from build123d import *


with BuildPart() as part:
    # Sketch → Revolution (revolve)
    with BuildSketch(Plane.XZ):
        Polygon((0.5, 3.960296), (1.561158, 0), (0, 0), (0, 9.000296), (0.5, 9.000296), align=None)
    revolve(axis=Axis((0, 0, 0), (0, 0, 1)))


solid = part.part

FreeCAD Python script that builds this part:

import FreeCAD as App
import Part
import Sketcher

V = App.Vector
Q = App.Units.Quantity

doc = App.newDocument("Part")
params = doc.addObject("Spreadsheet::Sheet", "Params")
for row, (alias, value) in enumerate([
    ("sketch1_width", "0.5 mm"),
    ("sketch1_length", "4.1 mm"),
    ("sketch1_height", "5.04 mm"),
    ("revolution_angle", "360 deg"),
], start=1):
    params.set(f"A{row}", alias)
    params.set(f"B{row}", "=" + value)
    params.setAlias(f"B{row}", alias)

body = doc.addObject("PartDesign::Body", "Body")

# Sketch on XZ plane
sketch1 = body.newObject("Sketcher::SketchObject", "Sketch")
sketch1.AttachmentSupport = (doc.getObject("XZ_Plane"), [""])
sketch1.MapMode = "FlatFace"
sketch1.addGeometry(Part.LineSegment(V(1.6, 0, 0), V(0.5, 4, 0)), False)
sketch1.addGeometry(Part.LineSegment(V(0.5, 4, 0), V(0.5, 9, 0)), False)
sketch1.addGeometry(Part.LineSegment(V(0.5, 9, 0), V(0, 9, 0)), False)
sketch1.addGeometry(Part.LineSegment(V(0, 9, 0), V(0, 0, 0)), False)
sketch1.addGeometry(Part.LineSegment(V(0, 0, 0), V(1.6, 0, 0)), False)
sketch1.addConstraint(Sketcher.Constraint("Coincident", 0, 2, 1, 1))
sketch1.addConstraint(Sketcher.Constraint("Coincident", 1, 2, 2, 1))
sketch1.addConstraint(Sketcher.Constraint("Coincident", 2, 2, 3, 1))
sketch1.addConstraint(Sketcher.Constraint("Coincident", 3, 2, 4, 1))
sketch1.addConstraint(Sketcher.Constraint("Coincident", 4, 2, 0, 1))
sketch1.addConstraint(Sketcher.Constraint("Vertical", 1))
sketch1.addConstraint(Sketcher.Constraint("Horizontal", 2))
sketch1.addConstraint(Sketcher.Constraint("Vertical", 3))
sketch1.addConstraint(Sketcher.Constraint("Horizontal", 4))
sketch1.addConstraint(Sketcher.Constraint("Coincident", 3, 2, -1, 1))
sketch1.addConstraint(Sketcher.Constraint("Angle", 0, Q("104.999998 deg")))
sketch1.addConstraint(Sketcher.Constraint("DistanceX", 2, 2, 2, 1, 0.5))
sketch1.addConstraint(Sketcher.Constraint("Distance", 0, 4.1))
sketch1.addConstraint(Sketcher.Constraint("DistanceY", 1, 1, 1, 2, 5.04))
sketch1.setExpression("Constraints[11]", "Params.sketch1_width")
sketch1.setExpression("Constraints[12]", "Params.sketch1_length")
sketch1.setExpression("Constraints[13]", "Params.sketch1_height")
revolution = body.newObject("PartDesign::Revolution", "Revolution")
revolution.Profile = sketch1
revolution.ReferenceAxis = (sketch1, ["V_Axis"])
revolution.setExpression("Angle", "Params.revolution_angle")

doc.recompute()
